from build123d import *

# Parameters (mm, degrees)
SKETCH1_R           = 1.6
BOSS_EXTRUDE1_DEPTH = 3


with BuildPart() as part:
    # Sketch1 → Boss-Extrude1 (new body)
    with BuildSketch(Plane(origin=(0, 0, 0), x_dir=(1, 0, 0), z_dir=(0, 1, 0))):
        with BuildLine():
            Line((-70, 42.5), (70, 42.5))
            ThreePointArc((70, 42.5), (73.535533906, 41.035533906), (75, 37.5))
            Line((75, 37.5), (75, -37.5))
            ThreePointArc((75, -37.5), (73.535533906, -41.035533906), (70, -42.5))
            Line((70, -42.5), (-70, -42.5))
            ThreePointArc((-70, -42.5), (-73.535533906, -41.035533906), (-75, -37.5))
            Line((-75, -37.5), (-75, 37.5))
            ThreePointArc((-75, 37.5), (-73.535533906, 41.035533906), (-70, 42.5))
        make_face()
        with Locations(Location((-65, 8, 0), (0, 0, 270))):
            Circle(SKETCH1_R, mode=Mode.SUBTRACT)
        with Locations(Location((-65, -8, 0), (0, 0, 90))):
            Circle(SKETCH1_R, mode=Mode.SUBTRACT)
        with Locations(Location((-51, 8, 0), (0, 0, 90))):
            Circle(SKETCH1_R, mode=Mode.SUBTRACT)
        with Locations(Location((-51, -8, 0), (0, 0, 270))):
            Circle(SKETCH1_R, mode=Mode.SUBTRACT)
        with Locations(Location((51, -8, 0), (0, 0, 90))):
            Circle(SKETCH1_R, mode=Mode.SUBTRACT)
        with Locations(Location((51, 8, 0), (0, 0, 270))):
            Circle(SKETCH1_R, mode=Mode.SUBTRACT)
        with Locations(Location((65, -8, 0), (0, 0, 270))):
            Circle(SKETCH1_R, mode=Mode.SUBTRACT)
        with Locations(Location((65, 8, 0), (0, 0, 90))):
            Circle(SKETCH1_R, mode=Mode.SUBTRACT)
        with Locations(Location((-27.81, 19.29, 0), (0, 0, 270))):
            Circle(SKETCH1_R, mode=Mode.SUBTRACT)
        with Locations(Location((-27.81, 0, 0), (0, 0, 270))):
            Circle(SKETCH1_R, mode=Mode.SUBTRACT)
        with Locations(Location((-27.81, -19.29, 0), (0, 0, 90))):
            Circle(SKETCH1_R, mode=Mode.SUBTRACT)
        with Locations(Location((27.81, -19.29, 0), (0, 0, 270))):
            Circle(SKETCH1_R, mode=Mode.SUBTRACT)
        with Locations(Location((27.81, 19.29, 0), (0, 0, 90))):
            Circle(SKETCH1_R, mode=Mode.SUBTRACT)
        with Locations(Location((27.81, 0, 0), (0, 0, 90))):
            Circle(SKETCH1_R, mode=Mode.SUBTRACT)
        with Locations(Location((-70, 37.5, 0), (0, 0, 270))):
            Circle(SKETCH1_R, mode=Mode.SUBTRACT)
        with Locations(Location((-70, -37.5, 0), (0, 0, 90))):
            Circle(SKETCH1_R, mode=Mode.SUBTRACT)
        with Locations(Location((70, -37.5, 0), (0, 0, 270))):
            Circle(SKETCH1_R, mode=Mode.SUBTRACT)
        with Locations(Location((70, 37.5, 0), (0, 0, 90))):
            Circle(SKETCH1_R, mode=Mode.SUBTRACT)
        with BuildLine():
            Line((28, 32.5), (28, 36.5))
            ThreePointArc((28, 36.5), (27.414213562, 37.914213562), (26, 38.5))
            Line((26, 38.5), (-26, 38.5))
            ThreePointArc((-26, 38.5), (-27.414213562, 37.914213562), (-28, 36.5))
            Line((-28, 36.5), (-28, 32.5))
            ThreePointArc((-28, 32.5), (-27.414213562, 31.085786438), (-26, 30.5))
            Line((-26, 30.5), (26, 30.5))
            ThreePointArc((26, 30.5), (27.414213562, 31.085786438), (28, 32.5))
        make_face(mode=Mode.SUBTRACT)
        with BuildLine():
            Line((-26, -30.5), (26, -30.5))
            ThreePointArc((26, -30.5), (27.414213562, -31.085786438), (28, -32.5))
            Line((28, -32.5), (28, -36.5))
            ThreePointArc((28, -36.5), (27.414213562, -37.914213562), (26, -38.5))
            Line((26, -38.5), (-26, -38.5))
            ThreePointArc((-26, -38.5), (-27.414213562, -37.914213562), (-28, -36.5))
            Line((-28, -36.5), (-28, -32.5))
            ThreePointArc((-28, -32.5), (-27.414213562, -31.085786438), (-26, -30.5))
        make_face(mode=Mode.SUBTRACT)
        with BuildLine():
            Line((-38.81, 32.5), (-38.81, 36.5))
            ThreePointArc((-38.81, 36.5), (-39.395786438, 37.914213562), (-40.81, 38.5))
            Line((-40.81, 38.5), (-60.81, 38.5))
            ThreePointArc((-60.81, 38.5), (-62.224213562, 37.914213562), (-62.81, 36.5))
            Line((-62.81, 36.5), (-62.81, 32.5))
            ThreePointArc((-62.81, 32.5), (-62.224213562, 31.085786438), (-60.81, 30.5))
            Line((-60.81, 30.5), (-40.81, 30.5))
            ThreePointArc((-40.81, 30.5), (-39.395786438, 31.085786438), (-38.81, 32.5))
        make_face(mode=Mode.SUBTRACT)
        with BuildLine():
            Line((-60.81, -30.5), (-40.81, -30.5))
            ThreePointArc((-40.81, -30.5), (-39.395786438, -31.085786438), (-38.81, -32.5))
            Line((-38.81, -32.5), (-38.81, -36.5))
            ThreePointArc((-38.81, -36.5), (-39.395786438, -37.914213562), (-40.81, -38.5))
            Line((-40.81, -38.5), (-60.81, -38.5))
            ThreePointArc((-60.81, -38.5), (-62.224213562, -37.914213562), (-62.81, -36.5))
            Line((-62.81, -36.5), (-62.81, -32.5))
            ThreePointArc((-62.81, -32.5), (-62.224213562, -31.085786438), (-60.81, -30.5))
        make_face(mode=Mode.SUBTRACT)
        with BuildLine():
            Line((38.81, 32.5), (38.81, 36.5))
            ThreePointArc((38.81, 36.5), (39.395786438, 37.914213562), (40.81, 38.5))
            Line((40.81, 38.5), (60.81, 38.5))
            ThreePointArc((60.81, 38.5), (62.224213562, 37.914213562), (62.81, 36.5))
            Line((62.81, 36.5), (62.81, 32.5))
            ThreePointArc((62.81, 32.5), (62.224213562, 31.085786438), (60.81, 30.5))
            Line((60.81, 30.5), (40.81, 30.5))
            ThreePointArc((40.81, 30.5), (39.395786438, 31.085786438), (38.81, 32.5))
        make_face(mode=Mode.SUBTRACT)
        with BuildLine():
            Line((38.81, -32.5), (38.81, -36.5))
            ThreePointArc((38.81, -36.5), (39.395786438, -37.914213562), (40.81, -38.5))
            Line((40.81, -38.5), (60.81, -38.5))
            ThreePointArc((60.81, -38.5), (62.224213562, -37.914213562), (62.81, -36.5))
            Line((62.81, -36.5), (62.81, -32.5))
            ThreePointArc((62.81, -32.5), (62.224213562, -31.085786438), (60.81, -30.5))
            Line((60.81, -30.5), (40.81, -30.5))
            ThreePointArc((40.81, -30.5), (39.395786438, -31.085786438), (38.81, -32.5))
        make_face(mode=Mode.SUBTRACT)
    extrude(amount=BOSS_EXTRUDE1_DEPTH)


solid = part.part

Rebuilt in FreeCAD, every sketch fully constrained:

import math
import FreeCAD as App
import Part
import Sketcher
from FreeCAD import Vector
Q = App.Units.Quantity

doc = App.newDocument("Part")
body = doc.addObject("PartDesign::Body", "Body")

# Sketch on XZ plane
sketch1 = doc.addObject("Sketcher::SketchObject", "Sketch")
body.addObject(sketch1)
sketch1.AttachmentSupport = (doc.XZ_Plane, [""])
sketch1.MapMode = "FlatFace"
sketch1.addGeometry([
    Part.LineSegment(Vector(70, -42.5, 0), Vector(-70, -42.5, 0)),  # 0
    Part.ArcOfCircle(Part.Circle(Vector(-70, -37.5, 0), Vector(0, 0, 1), 5), math.radians(180), math.radians(270)),  # 1
    Part.LineSegment(Vector(-75, -37.5, 0), Vector(-75, 37.5, 0)),  # 2
    Part.ArcOfCircle(Part.Circle(Vector(-70, 37.5, 0), Vector(0, 0, 1), 5), math.radians(90), math.radians(180)),  # 3
    Part.LineSegment(Vector(-70, 42.5, 0), Vector(70, 42.5, 0)),  # 4
    Part.ArcOfCircle(Part.Circle(Vector(70, 37.5, 0), Vector(0, 0, 1), 5), math.radians(0), math.radians(90)),  # 5
    Part.LineSegment(Vector(75, 37.5, 0), Vector(75, -37.5, 0)),  # 6
    Part.ArcOfCircle(Part.Circle(Vector(70, -37.5, 0), Vector(0, 0, 1), 5), math.radians(-90), math.radians(0)),  # 7
    Part.Circle(Vector(70, 37.5, 0), Vector(0, 0, 1), 1.6),  # 8
    Part.ArcOfCircle(Part.Circle(Vector(40.8, 32.5, 0), Vector(0, 0, 1), 2), math.radians(-180), math.radians(-90)),  # 9
    Part.LineSegment(Vector(40.8, 30.5, 0), Vector(60.8, 30.5, 0)),  # 10
    Part.ArcOfCircle(Part.Circle(Vector(60.8, 32.5, 0), Vector(0, 0, 1), 2), math.radians(-90), math.radians(0)),  # 11
    Part.LineSegment(Vector(62.8, 32.5, 0), Vector(62.8, 36.5, 0)),  # 12
    Part.ArcOfCircle(Part.Circle(Vector(60.8, 36.5, 0), Vector(0, 0, 1), 2), math.radians(0), math.radians(90)),  # 13
    Part.LineSegment(Vector(60.8, 38.5, 0), Vector(40.8, 38.5, 0)),  # 14
    Part.ArcOfCircle(Part.Circle(Vector(40.8, 36.5, 0), Vector(0, 0, 1), 2), math.radians(90), math.radians(180)),  # 15
    Part.LineSegment(Vector(38.8, 36.5, 0), Vector(38.8, 32.5, 0)),  # 16
    Part.Circle(Vector(65, 8, 0), Vector(0, 0, 1), 1.6),  # 17
    Part.Circle(Vector(51, 8, 0), Vector(0, 0, 1), 1.6),  # 18
    Part.Circle(Vector(27.8, 19.3, 0), Vector(0, 0, 1), 1.6),  # 19
    Part.LineSegment(Vector(-26, 30.5, 0), Vector(26, 30.5, 0)),  # 20
    Part.ArcOfCircle(Part.Circle(Vector(26, 32.5, 0), Vector(0, 0, 1), 2), math.radians(-90), math.radians(0)),  # 21
    Part.LineSegment(Vector(28, 32.5, 0), Vector(28, 36.5, 0)),  # 22
    Part.ArcOfCircle(Part.Circle(Vector(26, 36.5, 0), Vector(0, 0, 1), 2), math.radians(0), math.radians(90)),  # 23
    Part.LineSegment(Vector(26, 38.5, 0), Vector(-26, 38.5, 0)),  # 24
    Part.ArcOfCircle(Part.Circle(Vector(-26, 36.5, 0), Vector(0, 0, 1), 2), math.radians(90), math.radians(180)),  # 25
    Part.LineSegment(Vector(-28, 36.5, 0), Vector(-28, 32.5, 0)),  # 26
    Part.ArcOfCircle(Part.Circle(Vector(-26, 32.5, 0), Vector(0, 0, 1), 2), math.radians(-180), math.radians(-90)),  # 27
    Part.LineSegment(Vector(-60.8, 30.5, 0), Vector(-40.8, 30.5, 0)),  # 28
    Part.ArcOfCircle(Part.Circle(Vector(-40.8, 32.5, 0), Vector(0, 0, 1), 2), math.radians(-90), math.radians(0)),  # 29
    Part.LineSegment(Vector(-38.8, 32.5, 0), Vector(-38.8, 36.5, 0)),  # 30
    Part.ArcOfCircle(Part.Circle(Vector(-40.8, 36.5, 0), Vector(0, 0, 1), 2), math.radians(0), math.radians(90)),  # 31
    Part.LineSegment(Vector(-40.8, 38.5, 0), Vector(-60.8, 38.5, 0)),  # 32
    Part.ArcOfCircle(Part.Circle(Vector(-60.8, 36.5, 0), Vector(0, 0, 1), 2), math.radians(90), math.radians(180)),  # 33
    Part.LineSegment(Vector(-62.8, 36.5, 0), Vector(-62.8, 32.5, 0)),  # 34
    Part.ArcOfCircle(Part.Circle(Vector(-60.8, 32.5, 0), Vector(0, 0, 1), 2), math.radians(-180), math.radians(-90)),  # 35
    Part.Circle(Vector(-70, 37.5, 0), Vector(0, 0, 1), 1.6),  # 36
    Part.Circle(Vector(-27.8, 19.3, 0), Vector(0, 0, 1), 1.6),  # 37
    Part.Circle(Vector(-51, 8, 0), Vector(0, 0, 1), 1.6),  # 38
    Part.Circle(Vector(-65, 8, 0), Vector(0, 0, 1), 1.6),  # 39
    Part.Circle(Vector(65, -8, 0), Vector(0, 0, 1), 1.6),  # 40
    Part.Circle(Vector(51, -8, 0), Vector(0, 0, 1), 1.6),  # 41
    Part.Circle(Vector(27.8, 0, 0), Vector(0, 0, 1), 1.6),  # 42
    Part.Circle(Vector(27.8, -19.3, 0), Vector(0, 0, 1), 1.6),  # 43
    Part.Circle(Vector(70, -37.5, 0), Vector(0, 0, 1), 1.6),  # 44
    Part.LineSegment(Vector(38.8, -32.5, 0), Vector(38.8, -36.5, 0)),  # 45
    Part.ArcOfCircle(Part.Circle(Vector(40.8, -36.5, 0), Vector(0, 0, 1), 2), math.radians(-180), math.radians(-90)),  # 46
    Part.LineSegment(Vector(40.8, -38.5, 0), Vector(60.8, -38.5, 0)),  # 47
    Part.ArcOfCircle(Part.Circle(Vector(60.8, -36.5, 0), Vector(0, 0, 1), 2), math.radians(-90), math.radians(0)),  # 48
    Part.LineSegment(Vector(62.8, -36.5, 0), Vector(62.8, -32.5, 0)),  # 49
    Part.ArcOfCircle(Part.Circle(Vector(60.8, -32.5, 0), Vector(0, 0, 1), 2), math.radians(0), math.radians(90)),  # 50
    Part.LineSegment(Vector(60.8, -30.5, 0), Vector(40.8, -30.5, 0)),  # 51
    Part.ArcOfCircle(Part.Circle(Vector(40.8, -32.5, 0), Vector(0, 0, 1), 2), math.radians(90), math.radians(180)),  # 52
    Part.Circle(Vector(-27.8, 0, 0), Vector(0, 0, 1), 1.6),  # 53
    Part.Circle(Vector(-27.8, -19.3, 0), Vector(0, 0, 1), 1.6),  # 54
    Part.Circle(Vector(-51, -8, 0), Vector(0, 0, 1), 1.6),  # 55
    Part.Circle(Vector(-65, -8, 0), Vector(0, 0, 1), 1.6),  # 56
    Part.ArcOfCircle(Part.Circle(Vector(26, -32.5, 0), Vector(0, 0, 1), 2), math.radians(0), math.radians(90)),  # 57
    Part.LineSegment(Vector(26, -30.5, 0), Vector(-26, -30.5, 0)),  # 58
    Part.ArcOfCircle(Part.Circle(Vector(-26, -32.5, 0), Vector(0, 0, 1), 2), math.radians(90), math.radians(180)),  # 59
    Part.LineSegment(Vector(-28, -32.5, 0), Vector(-28, -36.5, 0)),  # 60
    Part.ArcOfCircle(Part.Circle(Vector(-26, -36.5, 0), Vector(0, 0, 1), 2), math.radians(-180), math.radians(-90)),  # 61
    Part.LineSegment(Vector(-26, -38.5, 0), Vector(26, -38.5, 0)),  # 62
    Part.ArcOfCircle(Part.Circle(Vector(26, -36.5, 0), Vector(0, 0, 1), 2), math.radians(-90), math.radians(0)),  # 63
    Part.LineSegment(Vector(28, -36.5, 0), Vector(28, -32.5, 0)),  # 64
    Part.ArcOfCircle(Part.Circle(Vector(-40.8, -32.5, 0), Vector(0, 0, 1), 2), math.radians(0), math.radians(90)),  # 65
    Part.LineSegment(Vector(-40.8, -30.5, 0), Vector(-60.8, -30.5, 0)),  # 66
    Part.ArcOfCircle(Part.Circle(Vector(-60.8, -32.5, 0), Vector(0, 0, 1), 2), math.radians(90), math.radians(180)),  # 67
    Part.LineSegment(Vector(-62.8, -32.5, 0), Vector(-62.8, -36.5, 0)),  # 68
    Part.ArcOfCircle(Part.Circle(Vector(-60.8, -36.5, 0), Vector(0, 0, 1), 2), math.radians(-180), math.radians(-90)),  # 69
    Part.LineSegment(Vector(-60.8, -38.5, 0), Vector(-40.8, -38.5, 0)),  # 70
    Part.ArcOfCircle(Part.Circle(Vector(-40.8, -36.5, 0), Vector(0, 0, 1), 2), math.radians(-90), math.radians(0)),  # 71
    Part.LineSegment(Vector(-38.8, -36.5, 0), Vector(-38.8, -32.5, 0)),  # 72
    Part.Circle(Vector(-70, -37.5, 0), Vector(0, 0, 1), 1.6),  # 73
], False)
sketch1.addConstraint([
    Sketcher.Constraint("Tangent", 0, 2, 1, 2),
    Sketcher.Constraint("Tangent", 1, 1, 2, 1),
    Sketcher.Constraint("Tangent", 2, 2, 3, 2),
    Sketcher.Constraint("Tangent", 3, 1, 4, 1),
    Sketcher.Constraint("Tangent", 4, 2, 5, 2),
    Sketcher.Constraint("Tangent", 5, 1, 6, 1),
    Sketcher.Constraint("Tangent", 6, 2, 7, 2),
    Sketcher.Constraint("Tangent", 7, 1, 0, 1),
    Sketcher.Constraint("Tangent", 9, 2, 10, 1),
    Sketcher.Constraint("Tangent", 10, 2, 11, 1),
    Sketcher.Constraint("Tangent", 11, 2, 12, 1),
    Sketcher.Constraint("Tangent", 12, 2, 13, 1),
    Sketcher.Constraint("Tangent", 13, 2, 14, 1),
    Sketcher.Constraint("Tangent", 14, 2, 15, 1),
    Sketcher.Constraint("Tangent", 15, 2, 16, 1),
    Sketcher.Constraint("Tangent", 16, 2, 9, 1),
    Sketcher.Constraint("Tangent", 20, 2, 21, 1),
    Sketcher.Constraint("Tangent", 21, 2, 22, 1),
    Sketcher.Constraint("Tangent", 22, 2, 23, 1),
    Sketcher.Constraint("Tangent", 23, 2, 24, 1),
    Sketcher.Constraint("Tangent", 24, 2, 25, 1),
    Sketcher.Constraint("Tangent", 25, 2, 26, 1),
    Sketcher.Constraint("Tangent", 26, 2, 27, 1),
    Sketcher.Constraint("Tangent", 27, 2, 20, 1),
    Sketcher.Constraint("Tangent", 28, 2, 29, 1),
    Sketcher.Constraint("Tangent", 29, 2, 30, 1),
    Sketcher.Constraint("Tangent", 30, 2, 31, 1),
    Sketcher.Constraint("Tangent", 31, 2, 32, 1),
    Sketcher.Constraint("Tangent", 32, 2, 33, 1),
    Sketcher.Constraint("Tangent", 33, 2, 34, 1),
    Sketcher.Constraint("Tangent", 34, 2, 35, 1),
    Sketcher.Constraint("Tangent", 35, 2, 28, 1),
    Sketcher.Constraint("Tangent", 45, 2, 46, 1),
    Sketcher.Constraint("Tangent", 46, 2, 47, 1),
    Sketcher.Constraint("Tangent", 47, 2, 48, 1),
    Sketcher.Constraint("Tangent", 48, 2, 49, 1),
    Sketcher.Constraint("Tangent", 49, 2, 50, 1),
    Sketcher.Constraint("Tangent", 50, 2, 51, 1),
    Sketcher.Constraint("Tangent", 51, 2, 52, 1),
    Sketcher.Constraint("Tangent", 52, 2, 45, 1),
    Sketcher.Constraint("Tangent", 57, 2, 58, 1),
    Sketcher.Constraint("Tangent", 58, 2, 59, 1),
    Sketcher.Constraint("Tangent", 59, 2, 60, 1),
    Sketcher.Constraint("Tangent", 60, 2, 61, 1),
    Sketcher.Constraint("Tangent", 61, 2, 62, 1),
    Sketcher.Constraint("Tangent", 62, 2, 63, 1),
    Sketcher.Constraint("Tangent", 63, 2, 64, 1),
    Sketcher.Constraint("Tangent", 64, 2, 57, 1),
    Sketcher.Constraint("Tangent", 65, 2, 66, 1),
    Sketcher.Constraint("Tangent", 66, 2, 67, 1),
    Sketcher.Constraint("Tangent", 67, 2, 68, 1),
    Sketcher.Constraint("Tangent", 68, 2, 69, 1),
    Sketcher.Constraint("Tangent", 69, 2, 70, 1),
    Sketcher.Constraint("Tangent", 70, 2, 71, 1),
    Sketcher.Constraint("Tangent", 71, 2, 72, 1),
    Sketcher.Constraint("Tangent", 72, 2, 65, 1),
    Sketcher.Constraint("Horizontal", 0),
    Sketcher.Constraint("Vertical", 2),
    Sketcher.Constraint("Horizontal", 4),
    Sketcher.Constraint("Vertical", 6),
    Sketcher.Constraint("Horizontal", 10),
    Sketcher.Constraint("Vertical", 12),
    Sketcher.Constraint("Horizontal", 14),
    Sketcher.Constraint("Vertical", 16),
    Sketcher.Constraint("Horizontal", 20),
    Sketcher.Constraint("Vertical", 22),
    Sketcher.Constraint("Horizontal", 24),
    Sketcher.Constraint("Vertical", 26),
    Sketcher.Constraint("Horizontal", 28),
    Sketcher.Constraint("Vertical", 30),
    Sketcher.Constraint("Horizontal", 32),
    Sketcher.Constraint("Vertical", 34),
    Sketcher.Constraint("Vertical", 45),
    Sketcher.Constraint("Horizontal", 47),
    Sketcher.Constraint("Vertical", 49),
    Sketcher.Constraint("Horizontal", 51),
    Sketcher.Constraint("Horizontal", 58),
    Sketcher.Constraint("Vertical", 60),
    Sketcher.Constraint("Horizontal", 62),
    Sketcher.Constraint("Vertical", 64),
    Sketcher.Constraint("Horizontal", 66),
    Sketcher.Constraint("Vertical", 68),
    Sketcher.Constraint("Horizontal", 70),
    Sketcher.Constraint("Vertical", 72),
    Sketcher.Constraint("Coincident", 8, 3, 5, 3),
    Sketcher.Constraint("Coincident", 36, 3, 3, 3),
    Sketcher.Constraint("Coincident", 44, 3, 7, 3),
    Sketcher.Constraint("Coincident", 73, 3, 1, 3),
    Sketcher.Constraint("Equal", 1, 3),
    Sketcher.Constraint("Equal", 3, 5),
    Sketcher.Constraint("Equal", 5, 7),
    Sketcher.Constraint("Equal", 9, 11),
    Sketcher.Constraint("Equal", 11, 13),
    Sketcher.Constraint("Equal", 13, 15),
    Sketcher.Constraint("Equal", 8, 17),
    Sketcher.Constraint("Equal", 17, 18),
    Sketcher.Constraint("Equal", 18, 19),
    Sketcher.Constraint("Equal", 15, 21),
    Sketcher.Constraint("Equal", 21, 23),
    Sketcher.Constraint("Equal", 23, 25),
    Sketcher.Constraint("Equal", 25, 27),
    Sketcher.Constraint("Equal", 27, 29),
    Sketcher.Constraint("Equal", 29, 31),
    Sketcher.Constraint("Equal", 31, 33),
    Sketcher.Constraint("Equal", 33, 35),
    Sketcher.Constraint("Equal", 19, 36),
    Sketcher.Constraint("Equal", 36, 37),
    Sketcher.Constraint("Equal", 37, 38),
    Sketcher.Constraint("Equal", 38, 39),
    Sketcher.Constraint("Equal", 39, 40),
    Sketcher.Constraint("Equal", 40, 41),
    Sketcher.Constraint("Equal", 41, 42),
    Sketcher.Constraint("Equal", 42, 43),
    Sketcher.Constraint("Equal", 43, 44),
    Sketcher.Constraint("Equal", 35, 46),
    Sketcher.Constraint("Equal", 46, 48),
    Sketcher.Constraint("Equal", 48, 50),
    Sketcher.Constraint("Equal", 50, 52),
    Sketcher.Constraint("Equal", 44, 53),
    Sketcher.Constraint("Equal", 53, 54),
    Sketcher.Constraint("Equal", 54, 55),
    Sketcher.Constraint("Equal", 55, 56),
    Sketcher.Constraint("Equal", 52, 57),
    Sketcher.Constraint("Equal", 57, 59),
    Sketcher.Constraint("Equal", 59, 61),
    Sketcher.Constraint("Equal", 61, 63),
    Sketcher.Constraint("Equal", 63, 65),
    Sketcher.Constraint("Equal", 65, 67),
    Sketcher.Constraint("Equal", 67, 69),
    Sketcher.Constraint("Equal", 69, 71),
    Sketcher.Constraint("Equal", 56, 73),
    Sketcher.Constraint("Symmetric", 1, 3, 5, 3, -1, 1),
    Sketcher.Constraint("Symmetric", 39, 3, 40, 3, -1, 1),
    Sketcher.Constraint("Symmetric", 38, 3, 41, 3, -1, 1),
    Sketcher.Constraint("Symmetric", 37, 3, 43, 3, -1, 1),
    Sketcher.Constraint("Symmetric", 31, 3, 46, 3, -1, 1),
    Sketcher.Constraint("Symmetric", 35, 3, 50, 3, -1, 1),
    Sketcher.Constraint("Symmetric", 42, 3, 53, 3, -1, 1),
    Sketcher.Constraint("Symmetric", 19, 3, 54, 3, -1, 1),
    Sketcher.Constraint("Symmetric", 18, 3, 55, 3, -1, 1),
    Sketcher.Constraint("Symmetric", 17, 3, 56, 3, -1, 1),
    Sketcher.Constraint("Symmetric", 27, 3, 57, 3, -1, 1),
    Sketcher.Constraint("Symmetric", 23, 3, 61, 3, -1, 1),
    Sketcher.Constraint("Symmetric", 9, 3, 65, 3, -1, 1),
    Sketcher.Constraint("Symmetric", 13, 3, 69, 3, -1, 1),
    Sketcher.Constraint("Symmetric", 9, 3, 29, 3, -2),
    Sketcher.Constraint("Symmetric", 13, 3, 33, 3, -2),
    Sketcher.Constraint("Symmetric", 19, 3, 37, 3, -2),
    Sketcher.Constraint("Symmetric", 18, 3, 38, 3, -2),
    Sketcher.Constraint("Symmetric", 17, 3, 39, 3, -2),
    Sketcher.Constraint("PointOnObject", 42, 3, -1),
    Sketcher.Constraint("Horizontal", 17, 3, 18, 3),
    Sketcher.Constraint("Horizontal", 11, 3, 21, 3),
    Sketcher.Constraint("Horizontal", 15, 3, 23, 3),
    Sketcher.Constraint("Vertical", 19, 3, 42, 3),
    Sketcher.Constraint("Vertical", 23, 3, 57, 3),
    Sketcher.Constraint("Radius", 1, Q("5 mm")),
    Sketcher.Constraint("Radius", 9, Q("2 mm")),
    Sketcher.Constraint("Diameter", 8, Q("3.2 mm")),
    Sketcher.Constraint("DistanceX", 0, 2, 0, 1, Q("140 mm")),
    Sketcher.Constraint("DistanceX", 10, 1, 10, 2, Q("20 mm")),
    Sketcher.Constraint("DistanceX", 20, 1, 20, 2, Q("52 mm")),
    Sketcher.Constraint("DistanceY", 2, 1, 2, 2, Q("75 mm")),
    Sketcher.Constraint("DistanceY", 12, 1, 12, 2, Q("4 mm")),
    Sketcher.Constraint("DistanceX", -1, 1, 17, 3, Q("65 mm")),
    Sketcher.Constraint("DistanceY", -1, 1, 17, 3, Q("8 mm")),
    Sketcher.Constraint("DistanceX", -1, 1, 18, 3, Q("51 mm")),
    Sketcher.Constraint("DistanceY", -1, 1, 9, 3, Q("32.5 mm")),
    Sketcher.Constraint("DistanceX", -1, 1, 9, 3, Q("40.81 mm")),
    Sketcher.Constraint("DistanceX", -1, 1, 19, 3, Q("27.81 mm")),
    Sketcher.Constraint("DistanceY", -1, 1, 19, 3, Q("19.29 mm")),
])
pad1 = doc.addObject("PartDesign::Pad", "Pad")
body.addObject(pad1)
pad1.Profile = sketch1
pad1.Length = 3
pad1.Reversed = True

doc.recompute()
